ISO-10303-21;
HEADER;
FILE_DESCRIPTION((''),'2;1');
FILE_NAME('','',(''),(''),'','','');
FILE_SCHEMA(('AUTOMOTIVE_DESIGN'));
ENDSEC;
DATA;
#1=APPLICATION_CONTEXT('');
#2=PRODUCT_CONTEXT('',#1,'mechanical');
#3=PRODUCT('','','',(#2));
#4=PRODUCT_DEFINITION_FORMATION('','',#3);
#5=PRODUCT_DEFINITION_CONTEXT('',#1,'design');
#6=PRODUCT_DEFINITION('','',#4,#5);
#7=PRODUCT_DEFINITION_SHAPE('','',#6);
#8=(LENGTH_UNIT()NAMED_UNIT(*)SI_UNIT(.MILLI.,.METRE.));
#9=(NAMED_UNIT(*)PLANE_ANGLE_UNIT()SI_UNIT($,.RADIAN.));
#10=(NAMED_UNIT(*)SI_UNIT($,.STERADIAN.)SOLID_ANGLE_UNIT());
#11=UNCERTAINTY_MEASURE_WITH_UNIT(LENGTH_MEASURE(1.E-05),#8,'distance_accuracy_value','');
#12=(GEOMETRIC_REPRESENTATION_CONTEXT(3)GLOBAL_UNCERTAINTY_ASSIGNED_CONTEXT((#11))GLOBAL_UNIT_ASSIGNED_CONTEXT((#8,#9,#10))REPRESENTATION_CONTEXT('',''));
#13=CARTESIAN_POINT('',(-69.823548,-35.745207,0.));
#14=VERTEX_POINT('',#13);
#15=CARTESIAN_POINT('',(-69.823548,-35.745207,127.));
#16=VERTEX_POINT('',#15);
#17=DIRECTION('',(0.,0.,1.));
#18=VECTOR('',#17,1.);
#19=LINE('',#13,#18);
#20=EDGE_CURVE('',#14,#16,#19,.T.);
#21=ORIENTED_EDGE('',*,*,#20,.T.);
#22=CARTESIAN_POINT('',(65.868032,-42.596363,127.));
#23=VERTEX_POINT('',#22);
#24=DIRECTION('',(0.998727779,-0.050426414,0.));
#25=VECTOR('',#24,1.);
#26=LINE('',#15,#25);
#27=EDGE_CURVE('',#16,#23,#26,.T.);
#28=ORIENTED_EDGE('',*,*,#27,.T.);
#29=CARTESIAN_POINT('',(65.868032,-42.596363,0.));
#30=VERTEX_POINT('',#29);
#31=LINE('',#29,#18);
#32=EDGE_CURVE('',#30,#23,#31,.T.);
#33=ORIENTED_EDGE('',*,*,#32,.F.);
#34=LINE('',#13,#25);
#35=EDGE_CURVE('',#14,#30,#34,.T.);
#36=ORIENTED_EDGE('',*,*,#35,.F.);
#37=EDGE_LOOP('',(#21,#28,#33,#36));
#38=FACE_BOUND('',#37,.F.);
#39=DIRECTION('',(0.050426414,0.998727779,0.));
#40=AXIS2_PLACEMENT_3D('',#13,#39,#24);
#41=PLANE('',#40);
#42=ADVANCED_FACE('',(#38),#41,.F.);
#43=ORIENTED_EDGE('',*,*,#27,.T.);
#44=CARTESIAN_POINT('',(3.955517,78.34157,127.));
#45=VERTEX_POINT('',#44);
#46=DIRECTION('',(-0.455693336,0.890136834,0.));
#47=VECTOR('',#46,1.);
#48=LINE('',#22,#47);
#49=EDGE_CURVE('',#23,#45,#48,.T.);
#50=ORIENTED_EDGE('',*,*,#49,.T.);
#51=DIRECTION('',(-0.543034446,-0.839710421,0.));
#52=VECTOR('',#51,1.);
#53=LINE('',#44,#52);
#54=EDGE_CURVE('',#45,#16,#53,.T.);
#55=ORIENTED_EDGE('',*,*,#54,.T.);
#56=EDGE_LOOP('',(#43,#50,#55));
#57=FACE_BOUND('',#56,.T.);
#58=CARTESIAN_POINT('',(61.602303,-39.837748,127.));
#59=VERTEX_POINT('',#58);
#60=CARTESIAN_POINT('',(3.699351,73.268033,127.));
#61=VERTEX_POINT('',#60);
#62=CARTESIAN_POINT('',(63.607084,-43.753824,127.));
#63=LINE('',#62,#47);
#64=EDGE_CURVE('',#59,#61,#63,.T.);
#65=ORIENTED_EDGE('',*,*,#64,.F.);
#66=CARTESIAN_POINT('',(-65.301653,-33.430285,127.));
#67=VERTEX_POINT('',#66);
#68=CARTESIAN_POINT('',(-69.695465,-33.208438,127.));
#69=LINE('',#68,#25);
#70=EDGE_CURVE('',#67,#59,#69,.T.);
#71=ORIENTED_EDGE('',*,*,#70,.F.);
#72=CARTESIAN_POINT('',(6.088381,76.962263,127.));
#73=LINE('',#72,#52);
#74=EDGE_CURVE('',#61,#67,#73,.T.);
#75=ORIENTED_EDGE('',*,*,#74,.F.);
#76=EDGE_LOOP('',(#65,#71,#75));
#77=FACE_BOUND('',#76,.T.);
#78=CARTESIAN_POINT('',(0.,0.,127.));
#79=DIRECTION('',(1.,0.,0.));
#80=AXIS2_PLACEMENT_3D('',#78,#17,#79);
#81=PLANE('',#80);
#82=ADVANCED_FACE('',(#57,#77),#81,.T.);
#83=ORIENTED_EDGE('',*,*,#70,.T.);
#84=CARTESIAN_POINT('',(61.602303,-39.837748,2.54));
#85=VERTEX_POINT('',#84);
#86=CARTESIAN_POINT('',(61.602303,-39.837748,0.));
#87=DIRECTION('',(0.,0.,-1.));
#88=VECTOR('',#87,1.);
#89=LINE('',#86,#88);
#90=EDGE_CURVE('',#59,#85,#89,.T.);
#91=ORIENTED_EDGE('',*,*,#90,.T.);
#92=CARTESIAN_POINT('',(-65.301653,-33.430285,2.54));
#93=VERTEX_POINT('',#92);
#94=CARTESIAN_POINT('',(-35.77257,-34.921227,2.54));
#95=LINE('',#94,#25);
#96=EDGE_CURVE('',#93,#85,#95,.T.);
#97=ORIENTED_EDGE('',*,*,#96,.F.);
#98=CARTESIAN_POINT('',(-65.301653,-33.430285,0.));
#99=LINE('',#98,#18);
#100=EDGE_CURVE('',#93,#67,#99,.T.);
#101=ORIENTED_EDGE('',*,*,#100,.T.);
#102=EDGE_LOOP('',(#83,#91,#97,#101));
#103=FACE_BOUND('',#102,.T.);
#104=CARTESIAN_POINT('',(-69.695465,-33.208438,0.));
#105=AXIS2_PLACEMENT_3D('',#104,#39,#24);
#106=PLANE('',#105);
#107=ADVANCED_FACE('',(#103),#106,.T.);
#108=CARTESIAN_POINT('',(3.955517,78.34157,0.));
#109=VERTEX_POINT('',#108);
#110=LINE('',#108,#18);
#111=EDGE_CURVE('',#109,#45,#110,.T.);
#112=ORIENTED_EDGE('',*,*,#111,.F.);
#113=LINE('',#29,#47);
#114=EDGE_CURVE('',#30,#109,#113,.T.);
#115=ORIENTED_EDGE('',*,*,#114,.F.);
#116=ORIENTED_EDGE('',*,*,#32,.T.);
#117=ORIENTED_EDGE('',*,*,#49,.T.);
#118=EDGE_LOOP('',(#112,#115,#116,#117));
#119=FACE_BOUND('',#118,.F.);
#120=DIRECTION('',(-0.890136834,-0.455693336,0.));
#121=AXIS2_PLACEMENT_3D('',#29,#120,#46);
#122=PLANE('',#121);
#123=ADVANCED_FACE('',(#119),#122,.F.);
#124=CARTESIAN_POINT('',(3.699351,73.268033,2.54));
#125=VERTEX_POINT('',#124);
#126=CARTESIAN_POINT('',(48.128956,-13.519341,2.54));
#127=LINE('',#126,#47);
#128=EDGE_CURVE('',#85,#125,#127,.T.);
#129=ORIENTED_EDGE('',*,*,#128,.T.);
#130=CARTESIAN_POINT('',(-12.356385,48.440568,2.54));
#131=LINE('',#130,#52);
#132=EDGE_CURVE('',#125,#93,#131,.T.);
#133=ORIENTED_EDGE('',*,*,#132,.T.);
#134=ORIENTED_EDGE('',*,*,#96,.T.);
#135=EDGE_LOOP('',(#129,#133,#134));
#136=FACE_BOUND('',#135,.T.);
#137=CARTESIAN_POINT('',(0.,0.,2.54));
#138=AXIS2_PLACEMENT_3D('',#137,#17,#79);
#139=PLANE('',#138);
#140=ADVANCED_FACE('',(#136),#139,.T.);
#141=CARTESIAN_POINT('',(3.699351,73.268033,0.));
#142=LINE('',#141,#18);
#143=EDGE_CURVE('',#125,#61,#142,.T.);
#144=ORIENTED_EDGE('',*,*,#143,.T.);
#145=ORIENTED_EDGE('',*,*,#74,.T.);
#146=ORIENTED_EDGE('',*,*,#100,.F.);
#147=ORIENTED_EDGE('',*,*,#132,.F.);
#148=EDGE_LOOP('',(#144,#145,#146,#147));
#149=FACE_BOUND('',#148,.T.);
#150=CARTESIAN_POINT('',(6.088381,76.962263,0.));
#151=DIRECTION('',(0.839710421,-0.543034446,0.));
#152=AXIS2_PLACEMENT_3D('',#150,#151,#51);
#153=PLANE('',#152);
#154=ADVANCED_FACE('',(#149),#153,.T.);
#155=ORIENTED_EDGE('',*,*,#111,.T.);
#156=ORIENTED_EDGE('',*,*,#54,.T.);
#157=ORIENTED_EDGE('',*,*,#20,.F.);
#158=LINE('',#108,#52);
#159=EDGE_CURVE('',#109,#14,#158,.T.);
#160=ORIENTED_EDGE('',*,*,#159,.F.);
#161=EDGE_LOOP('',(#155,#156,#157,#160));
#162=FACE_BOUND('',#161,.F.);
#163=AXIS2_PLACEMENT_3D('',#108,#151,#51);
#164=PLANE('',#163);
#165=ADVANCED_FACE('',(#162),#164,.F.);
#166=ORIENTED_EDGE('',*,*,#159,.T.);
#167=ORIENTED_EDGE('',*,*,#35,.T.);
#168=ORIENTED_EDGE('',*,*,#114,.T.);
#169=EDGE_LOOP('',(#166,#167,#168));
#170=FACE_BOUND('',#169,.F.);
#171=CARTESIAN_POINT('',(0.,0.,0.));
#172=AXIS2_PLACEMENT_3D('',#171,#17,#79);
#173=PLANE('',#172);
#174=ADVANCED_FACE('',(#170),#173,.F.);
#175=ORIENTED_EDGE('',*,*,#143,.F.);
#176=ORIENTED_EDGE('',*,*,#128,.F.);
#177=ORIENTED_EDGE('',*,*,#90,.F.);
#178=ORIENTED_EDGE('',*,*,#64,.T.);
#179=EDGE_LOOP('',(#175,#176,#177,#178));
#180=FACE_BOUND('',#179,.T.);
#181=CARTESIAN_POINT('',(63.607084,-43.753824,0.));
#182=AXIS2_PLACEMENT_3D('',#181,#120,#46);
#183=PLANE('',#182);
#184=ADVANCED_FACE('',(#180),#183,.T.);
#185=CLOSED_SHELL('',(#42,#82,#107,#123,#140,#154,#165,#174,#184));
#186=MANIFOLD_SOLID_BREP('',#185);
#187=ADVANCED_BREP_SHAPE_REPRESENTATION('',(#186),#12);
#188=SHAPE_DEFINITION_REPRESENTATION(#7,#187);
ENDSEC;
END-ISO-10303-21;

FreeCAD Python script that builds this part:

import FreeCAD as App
import Part
import Sketcher

V = App.Vector
Q = App.Units.Quantity


def faces_at(feature, points):
    """Names of the faces that lie closest to the given points."""
    faces = feature.Shape.Faces
    near = lambda p: min(range(len(faces)), key=lambda i: faces[i].distToShape(Part.Vertex(*p))[0])
    return sorted({f"Face{near(p) + 1}" for p in points})


def add_polygon(sketch, points):
    """Adds a closed chain of lines whose ends are joined by coincident constraints."""
    first, n = sketch.GeometryCount, len(points)
    for a, b in zip(points, points[1:] + points[:1]):
        sketch.addGeometry(Part.LineSegment(App.Vector(*a, 0), App.Vector(*b, 0)), False)
    for i in range(n):
        sketch.addConstraint(Sketcher.Constraint("Coincident", first + i, 2, first + (i + 1) % n, 1))

doc = App.newDocument("Part")
body = doc.addObject("PartDesign::Body", "Body")

# Sketch on XY plane
sketch1 = body.newObject("Sketcher::SketchObject", "Sketch")
sketch1.AttachmentSupport = (doc.getObject("XY_Plane"), [""])
sketch1.MapMode = "FlatFace"
add_polygon(sketch1, [(66, -43), (4, 78), (-70, -36)])  # lines 0-2
sketch1.addConstraint([
    Sketcher.Constraint("Equal", 0, 1),
    Sketcher.Constraint("Equal", 1, 2),
    Sketcher.Constraint("Distance", 0, Q("135.864429 mm")),
    Sketcher.Constraint("DistanceY", -1, 1, 0, 2, Q("78.34157 mm")),
    Sketcher.Constraint("DistanceX", 1, 2, -1, 1, Q("69.823548 mm")),
    Sketcher.Constraint("DistanceX", -1, 1, 2, 2, Q("65.868032 mm")),
])
pad1 = body.newObject("PartDesign::Pad", "Pad")
pad1.Profile = sketch1
pad1.Length = Q("5 in")
doc.recompute()

thickness = body.newObject("PartDesign::Thickness", "Thickness")
thickness.Base = (pad1, faces_at(pad1, [(-1.978, 17.873, 127)]))
thickness.Value = Q("0.1 in")
thickness.Reversed = True
thickness.Join = "Arc"

doc.recompute()
